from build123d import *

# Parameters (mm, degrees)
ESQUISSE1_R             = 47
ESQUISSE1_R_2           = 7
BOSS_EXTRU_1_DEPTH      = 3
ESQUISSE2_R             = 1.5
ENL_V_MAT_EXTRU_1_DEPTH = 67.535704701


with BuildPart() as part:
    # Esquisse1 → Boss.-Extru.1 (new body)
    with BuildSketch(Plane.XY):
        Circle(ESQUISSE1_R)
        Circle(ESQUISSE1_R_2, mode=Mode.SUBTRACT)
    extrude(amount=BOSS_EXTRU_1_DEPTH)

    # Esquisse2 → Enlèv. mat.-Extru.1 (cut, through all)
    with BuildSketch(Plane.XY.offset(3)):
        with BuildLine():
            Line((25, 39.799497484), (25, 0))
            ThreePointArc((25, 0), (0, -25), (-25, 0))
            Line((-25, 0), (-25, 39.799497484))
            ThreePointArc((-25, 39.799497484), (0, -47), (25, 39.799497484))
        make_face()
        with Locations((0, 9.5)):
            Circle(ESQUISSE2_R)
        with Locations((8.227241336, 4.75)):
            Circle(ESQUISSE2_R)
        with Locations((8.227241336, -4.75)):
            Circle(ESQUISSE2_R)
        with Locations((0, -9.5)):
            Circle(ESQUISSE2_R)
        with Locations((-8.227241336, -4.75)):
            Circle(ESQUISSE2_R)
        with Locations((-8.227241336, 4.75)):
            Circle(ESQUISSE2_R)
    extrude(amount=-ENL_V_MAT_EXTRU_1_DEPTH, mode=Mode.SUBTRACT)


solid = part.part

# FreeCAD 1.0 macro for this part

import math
import FreeCAD as App
import Part
import Sketcher
from FreeCAD import Vector
Q = App.Units.Quantity

doc = App.newDocument("Part")
body = doc.addObject("PartDesign::Body", "Body")

# Sketch on XY plane
sketch1 = doc.addObject("Sketcher::SketchObject", "Sketch")
body.addObject(sketch1)
sketch1.AttachmentSupport = (doc.XY_Plane, [""])
sketch1.MapMode = "FlatFace"
sketch1.addGeometry([
    Part.Circle(Vector(0, 0, 0), Vector(0, 0, 1), 47),
    Part.Circle(Vector(0, 0, 0), Vector(0, 0, 1), 7),
], False)
sketch1.addConstraint([
    Sketcher.Constraint("Coincident", 0, 3, -1, 1),
    Sketcher.Constraint("Coincident", 1, 3, -1, 1),
    Sketcher.Constraint("Diameter", 0, Q("94 mm")),
    Sketcher.Constraint("Diameter", 1, Q("14 mm")),
])
pad1 = doc.addObject("PartDesign::Pad", "Pad")
body.addObject(pad1)
pad1.Profile = sketch1
pad1.Length = 3

# Sketch on XY plane
sketch2 = doc.addObject("Sketcher::SketchObject", "Sketch001")
body.addObject(sketch2)
sketch2.AttachmentSupport = (doc.XY_Plane, [""])
sketch2.MapMode = "FlatFace"
sketch2.AttachmentOffset = App.Placement(Vector(0, 0, 3), App.Rotation())
sketch2.addGeometry([
    Part.LineSegment(Vector(25, 39.799497, 0), Vector(25, 0, 0)),  # 0
    Part.ArcOfCircle(Part.Circle(Vector(0, 0, 0), Vector(0, 0, 1), 25), math.radians(180), math.radians(360)),  # 1
    Part.LineSegment(Vector(-25, 0, 0), Vector(-25, 39.799497, 0)),  # 2
    Part.ArcOfCircle(Part.Circle(Vector(0, 0, 0), Vector(0, 0, 1), 47), math.radians(122.134928), math.radians(417.865072)),  # 3
    Part.Circle(Vector(0, 9.5, 0), Vector(0, 0, 1), 1.5),  # 4
    Part.Circle(Vector(8.227241, 4.75, 0), Vector(0, 0, 1), 1.5),  # 5
    Part.Circle(Vector(8.227241, -4.75, 0), Vector(0, 0, 1), 1.5),  # 6
    Part.Circle(Vector(0, -9.5, 0), Vector(0, 0, 1), 1.5),  # 7
    Part.Circle(Vector(-8.227241, -4.75, 0), Vector(0, 0, 1), 1.5),  # 8
    Part.Circle(Vector(-8.227241, 4.75, 0), Vector(0, 0, 1), 1.5),  # 9
], False)
sketch2.addConstraint([
    Sketcher.Constraint("Tangent", 0, 2, 1, 2),
    Sketcher.Constraint("Tangent", 1, 1, 2, 1),
    Sketcher.Constraint("Coincident", 2, 2, 3, 1),
    Sketcher.Constraint("Coincident", 3, 2, 0, 1),
    Sketcher.Constraint("Vertical", 0),
    Sketcher.Constraint("Vertical", 2),
    Sketcher.Constraint("Coincident", 1, 3, -1, 1),
    Sketcher.Constraint("Coincident", 3, 3, -1, 1),
    Sketcher.Constraint("Equal", 4, 5),
    Sketcher.Constraint("Equal", 5, 6),
    Sketcher.Constraint("Equal", 6, 7),
    Sketcher.Constraint("Equal", 7, 8),
    Sketcher.Constraint("Equal", 8, 9),
    Sketcher.Constraint("Symmetric", 4, 3, 7, 3, -1, 1),
    Sketcher.Constraint("Symmetric", 5, 3, 8, 3, -1, 1),
    Sketcher.Constraint("Symmetric", 6, 3, 9, 3, -1, 1),
    Sketcher.Constraint("Symmetric", 6, 3, 8, 3, -2),
    Sketcher.Constraint("PointOnObject", 4, 3, -2),
    Sketcher.Constraint("Diameter", 4, Q("3 mm")),
    Sketcher.Constraint("Radius", 1, Q("25 mm")),
    Sketcher.Constraint("Radius", 3, Q("47 mm")),
    Sketcher.Constraint("DistanceY", 7, 3, 4, 3, Q("19 mm")),
    Sketcher.Constraint("DistanceY", 6, 3, 5, 3, Q("9.5 mm")),
    Sketcher.Constraint("DistanceX", -1, 1, 5, 3, Q("8.227241 mm")),
])
pocket1 = doc.addObject("PartDesign::Pocket", "Pocket")
body.addObject(pocket1)
pocket1.Profile = sketch2
pocket1.Type = "ThroughAll"

doc.recompute()
